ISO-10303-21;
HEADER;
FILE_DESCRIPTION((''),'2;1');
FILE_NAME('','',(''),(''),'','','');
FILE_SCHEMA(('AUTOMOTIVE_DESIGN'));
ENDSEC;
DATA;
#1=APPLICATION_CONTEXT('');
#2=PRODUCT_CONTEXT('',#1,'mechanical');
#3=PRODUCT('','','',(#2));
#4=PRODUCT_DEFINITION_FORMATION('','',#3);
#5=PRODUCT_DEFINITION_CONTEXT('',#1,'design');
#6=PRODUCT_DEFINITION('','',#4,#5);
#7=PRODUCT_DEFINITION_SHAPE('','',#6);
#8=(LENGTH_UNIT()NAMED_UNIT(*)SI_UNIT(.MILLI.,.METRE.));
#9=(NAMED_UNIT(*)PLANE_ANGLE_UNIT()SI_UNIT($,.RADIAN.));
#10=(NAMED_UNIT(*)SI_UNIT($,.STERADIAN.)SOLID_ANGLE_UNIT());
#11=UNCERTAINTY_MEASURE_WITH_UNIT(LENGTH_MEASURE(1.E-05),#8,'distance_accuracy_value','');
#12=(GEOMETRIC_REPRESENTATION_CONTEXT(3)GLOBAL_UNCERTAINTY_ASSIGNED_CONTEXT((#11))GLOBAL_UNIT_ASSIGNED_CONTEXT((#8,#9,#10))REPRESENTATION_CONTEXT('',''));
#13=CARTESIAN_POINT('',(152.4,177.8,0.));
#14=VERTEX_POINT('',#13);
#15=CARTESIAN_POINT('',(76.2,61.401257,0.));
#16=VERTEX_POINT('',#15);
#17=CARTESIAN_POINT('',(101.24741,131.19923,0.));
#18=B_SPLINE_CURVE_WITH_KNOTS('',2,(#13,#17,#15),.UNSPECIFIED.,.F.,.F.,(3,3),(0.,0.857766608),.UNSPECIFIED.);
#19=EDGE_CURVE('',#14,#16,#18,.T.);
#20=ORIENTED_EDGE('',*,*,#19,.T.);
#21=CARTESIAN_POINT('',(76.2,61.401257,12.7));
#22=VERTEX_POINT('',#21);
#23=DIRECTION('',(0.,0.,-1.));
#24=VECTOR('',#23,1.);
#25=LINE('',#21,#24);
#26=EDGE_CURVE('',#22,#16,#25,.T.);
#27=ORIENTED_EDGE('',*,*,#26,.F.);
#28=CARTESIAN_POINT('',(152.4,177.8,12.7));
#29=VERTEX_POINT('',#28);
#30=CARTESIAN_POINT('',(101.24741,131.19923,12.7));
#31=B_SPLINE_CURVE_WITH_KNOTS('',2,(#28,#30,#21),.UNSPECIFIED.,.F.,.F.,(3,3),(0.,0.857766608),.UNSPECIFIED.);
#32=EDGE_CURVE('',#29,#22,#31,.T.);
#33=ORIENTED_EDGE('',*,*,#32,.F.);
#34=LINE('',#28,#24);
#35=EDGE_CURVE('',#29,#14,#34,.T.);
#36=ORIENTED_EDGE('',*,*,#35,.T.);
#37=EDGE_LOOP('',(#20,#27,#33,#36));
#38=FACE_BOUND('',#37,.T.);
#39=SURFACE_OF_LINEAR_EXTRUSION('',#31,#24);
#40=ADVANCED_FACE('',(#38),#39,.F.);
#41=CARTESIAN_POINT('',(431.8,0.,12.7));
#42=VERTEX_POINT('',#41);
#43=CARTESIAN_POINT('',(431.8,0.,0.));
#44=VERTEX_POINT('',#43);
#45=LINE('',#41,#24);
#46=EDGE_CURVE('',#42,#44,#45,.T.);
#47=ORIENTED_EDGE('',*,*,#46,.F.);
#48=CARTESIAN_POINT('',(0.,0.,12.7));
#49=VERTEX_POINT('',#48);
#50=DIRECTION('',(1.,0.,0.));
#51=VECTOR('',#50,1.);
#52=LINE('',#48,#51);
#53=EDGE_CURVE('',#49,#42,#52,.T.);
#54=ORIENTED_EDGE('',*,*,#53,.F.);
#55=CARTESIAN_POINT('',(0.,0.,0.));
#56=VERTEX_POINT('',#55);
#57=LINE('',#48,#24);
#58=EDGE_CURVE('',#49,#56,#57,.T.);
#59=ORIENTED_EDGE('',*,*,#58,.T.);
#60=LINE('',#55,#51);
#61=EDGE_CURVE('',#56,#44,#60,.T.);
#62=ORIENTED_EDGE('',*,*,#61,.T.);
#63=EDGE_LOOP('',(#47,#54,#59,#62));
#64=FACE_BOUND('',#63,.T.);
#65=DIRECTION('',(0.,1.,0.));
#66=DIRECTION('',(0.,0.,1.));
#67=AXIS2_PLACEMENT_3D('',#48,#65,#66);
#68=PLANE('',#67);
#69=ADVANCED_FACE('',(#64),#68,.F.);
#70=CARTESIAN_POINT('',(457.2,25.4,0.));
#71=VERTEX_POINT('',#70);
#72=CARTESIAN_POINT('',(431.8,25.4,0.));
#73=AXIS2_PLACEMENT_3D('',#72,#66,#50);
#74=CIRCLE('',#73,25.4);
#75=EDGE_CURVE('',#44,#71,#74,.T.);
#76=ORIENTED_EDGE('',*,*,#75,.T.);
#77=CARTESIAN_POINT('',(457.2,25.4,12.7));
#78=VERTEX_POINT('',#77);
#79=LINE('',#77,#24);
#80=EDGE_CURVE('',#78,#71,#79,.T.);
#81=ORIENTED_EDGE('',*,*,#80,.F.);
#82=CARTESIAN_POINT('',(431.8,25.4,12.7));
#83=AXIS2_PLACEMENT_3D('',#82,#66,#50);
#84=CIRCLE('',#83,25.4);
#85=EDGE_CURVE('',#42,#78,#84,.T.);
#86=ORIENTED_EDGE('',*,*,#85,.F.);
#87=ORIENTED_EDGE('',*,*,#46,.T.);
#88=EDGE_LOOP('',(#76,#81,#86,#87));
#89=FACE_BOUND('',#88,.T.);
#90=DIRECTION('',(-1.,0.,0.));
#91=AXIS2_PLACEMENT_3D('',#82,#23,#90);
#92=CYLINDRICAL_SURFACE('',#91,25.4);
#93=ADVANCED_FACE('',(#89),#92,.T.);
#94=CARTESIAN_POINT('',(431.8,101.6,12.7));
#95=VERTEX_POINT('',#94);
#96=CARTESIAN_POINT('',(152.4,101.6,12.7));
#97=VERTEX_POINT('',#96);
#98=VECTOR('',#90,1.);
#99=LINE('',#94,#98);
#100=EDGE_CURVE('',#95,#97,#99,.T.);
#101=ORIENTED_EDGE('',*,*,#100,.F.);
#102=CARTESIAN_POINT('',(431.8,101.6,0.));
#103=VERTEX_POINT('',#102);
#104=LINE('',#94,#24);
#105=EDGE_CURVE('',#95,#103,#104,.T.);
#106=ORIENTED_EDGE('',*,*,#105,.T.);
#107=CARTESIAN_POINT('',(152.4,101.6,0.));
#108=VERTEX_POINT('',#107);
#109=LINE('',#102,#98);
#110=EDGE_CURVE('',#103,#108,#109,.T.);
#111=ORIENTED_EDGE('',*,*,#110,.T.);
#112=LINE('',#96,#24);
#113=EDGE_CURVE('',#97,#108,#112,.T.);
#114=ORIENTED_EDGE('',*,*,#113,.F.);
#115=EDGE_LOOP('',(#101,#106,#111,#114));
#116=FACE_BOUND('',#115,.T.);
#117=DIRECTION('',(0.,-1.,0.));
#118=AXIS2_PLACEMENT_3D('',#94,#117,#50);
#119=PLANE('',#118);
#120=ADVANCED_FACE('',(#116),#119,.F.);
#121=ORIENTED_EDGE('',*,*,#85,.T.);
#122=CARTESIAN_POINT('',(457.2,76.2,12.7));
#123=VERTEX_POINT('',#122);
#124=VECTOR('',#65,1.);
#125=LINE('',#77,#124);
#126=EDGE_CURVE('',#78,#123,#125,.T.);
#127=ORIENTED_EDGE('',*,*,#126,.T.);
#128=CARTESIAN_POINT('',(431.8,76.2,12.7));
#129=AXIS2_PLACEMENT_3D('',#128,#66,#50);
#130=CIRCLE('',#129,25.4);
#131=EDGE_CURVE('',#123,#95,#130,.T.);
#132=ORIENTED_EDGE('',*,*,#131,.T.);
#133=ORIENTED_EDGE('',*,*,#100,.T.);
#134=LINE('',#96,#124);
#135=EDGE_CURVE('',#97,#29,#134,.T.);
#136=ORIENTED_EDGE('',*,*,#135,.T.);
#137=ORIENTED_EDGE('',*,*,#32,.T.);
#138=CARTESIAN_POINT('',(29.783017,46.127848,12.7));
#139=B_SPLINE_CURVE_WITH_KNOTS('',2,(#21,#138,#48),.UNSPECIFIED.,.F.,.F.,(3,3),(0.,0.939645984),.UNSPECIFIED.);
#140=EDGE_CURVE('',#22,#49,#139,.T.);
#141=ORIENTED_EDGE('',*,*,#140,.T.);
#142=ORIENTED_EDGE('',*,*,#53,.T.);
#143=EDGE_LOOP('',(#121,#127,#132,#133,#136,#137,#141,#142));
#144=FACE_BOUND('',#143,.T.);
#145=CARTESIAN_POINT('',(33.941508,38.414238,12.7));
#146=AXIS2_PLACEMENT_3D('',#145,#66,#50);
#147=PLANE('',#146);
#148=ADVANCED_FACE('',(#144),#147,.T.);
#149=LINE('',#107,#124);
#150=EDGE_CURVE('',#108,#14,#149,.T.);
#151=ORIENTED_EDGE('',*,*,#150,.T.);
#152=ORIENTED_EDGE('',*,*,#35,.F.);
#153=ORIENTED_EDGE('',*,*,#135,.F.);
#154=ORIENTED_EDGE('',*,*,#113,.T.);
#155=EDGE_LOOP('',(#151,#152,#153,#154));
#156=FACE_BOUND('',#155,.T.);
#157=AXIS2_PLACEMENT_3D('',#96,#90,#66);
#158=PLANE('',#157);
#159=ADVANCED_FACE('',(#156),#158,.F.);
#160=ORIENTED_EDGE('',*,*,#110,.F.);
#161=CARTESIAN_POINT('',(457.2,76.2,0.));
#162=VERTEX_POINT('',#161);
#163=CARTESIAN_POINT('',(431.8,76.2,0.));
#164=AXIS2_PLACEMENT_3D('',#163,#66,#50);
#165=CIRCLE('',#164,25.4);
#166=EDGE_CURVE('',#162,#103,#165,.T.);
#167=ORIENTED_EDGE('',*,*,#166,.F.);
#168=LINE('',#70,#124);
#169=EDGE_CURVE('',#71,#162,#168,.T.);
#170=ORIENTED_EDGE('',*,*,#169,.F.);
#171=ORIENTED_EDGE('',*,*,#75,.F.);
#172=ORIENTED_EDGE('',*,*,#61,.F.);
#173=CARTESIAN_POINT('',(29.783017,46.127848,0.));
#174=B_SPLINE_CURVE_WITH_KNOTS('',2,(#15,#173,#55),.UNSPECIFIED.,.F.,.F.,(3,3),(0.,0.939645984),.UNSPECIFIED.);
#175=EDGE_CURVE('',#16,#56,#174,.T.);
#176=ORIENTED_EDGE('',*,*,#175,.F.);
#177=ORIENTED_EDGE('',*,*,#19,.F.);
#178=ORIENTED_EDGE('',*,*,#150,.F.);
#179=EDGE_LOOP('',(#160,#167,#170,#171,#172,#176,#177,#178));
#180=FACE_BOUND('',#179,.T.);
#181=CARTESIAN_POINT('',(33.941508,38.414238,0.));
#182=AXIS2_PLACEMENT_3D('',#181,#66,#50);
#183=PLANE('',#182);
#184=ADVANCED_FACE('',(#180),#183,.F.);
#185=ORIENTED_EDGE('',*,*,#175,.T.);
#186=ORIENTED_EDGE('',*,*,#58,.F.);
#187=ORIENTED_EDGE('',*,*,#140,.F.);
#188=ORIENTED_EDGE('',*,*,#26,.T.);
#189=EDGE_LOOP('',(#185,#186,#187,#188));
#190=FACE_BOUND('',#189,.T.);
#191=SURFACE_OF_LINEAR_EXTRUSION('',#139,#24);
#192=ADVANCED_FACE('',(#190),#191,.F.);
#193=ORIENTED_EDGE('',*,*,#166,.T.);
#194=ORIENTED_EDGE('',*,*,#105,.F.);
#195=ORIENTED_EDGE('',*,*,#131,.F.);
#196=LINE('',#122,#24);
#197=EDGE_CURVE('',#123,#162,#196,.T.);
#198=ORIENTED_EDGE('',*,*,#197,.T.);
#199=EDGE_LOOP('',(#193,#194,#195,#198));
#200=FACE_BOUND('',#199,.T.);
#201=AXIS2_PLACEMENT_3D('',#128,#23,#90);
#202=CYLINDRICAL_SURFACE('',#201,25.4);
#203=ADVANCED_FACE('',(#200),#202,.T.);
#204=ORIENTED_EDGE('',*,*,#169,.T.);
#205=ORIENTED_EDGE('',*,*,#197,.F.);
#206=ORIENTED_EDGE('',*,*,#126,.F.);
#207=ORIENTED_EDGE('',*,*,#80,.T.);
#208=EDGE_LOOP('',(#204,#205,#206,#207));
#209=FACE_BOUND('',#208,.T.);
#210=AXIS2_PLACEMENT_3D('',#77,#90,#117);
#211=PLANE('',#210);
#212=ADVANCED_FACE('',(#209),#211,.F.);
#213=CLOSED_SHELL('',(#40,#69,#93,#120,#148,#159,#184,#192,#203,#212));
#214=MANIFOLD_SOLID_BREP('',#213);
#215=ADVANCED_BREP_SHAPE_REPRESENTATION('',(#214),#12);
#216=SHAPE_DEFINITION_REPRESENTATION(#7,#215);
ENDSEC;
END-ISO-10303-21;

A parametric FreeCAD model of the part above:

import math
import FreeCAD as App
import Part
import Sketcher
from FreeCAD import Vector
Q = App.Units.Quantity

doc = App.newDocument("Part")
body = doc.addObject("PartDesign::Body", "Body")

# Sketch on XY plane
sketch1 = doc.addObject("Sketcher::SketchObject", "Sketch")
body.addObject(sketch1)
sketch1.AttachmentSupport = (doc.XY_Plane, [""])
sketch1.MapMode = "FlatFace"
sketch1.addGeometry([
    Part.LineSegment(Vector(0, 0, 0), Vector(431.8, 0, 0)),  # 0
    Part.ArcOfCircle(Part.Circle(Vector(431.8, 25.4, 0), Vector(0, 0, 1), 25.4), math.radians(-90), math.radians(0)),  # 1
    Part.LineSegment(Vector(457.2, 25.4, 0), Vector(457.2, 76.2, 0)),  # 2
    Part.ArcOfCircle(Part.Circle(Vector(431.8, 76.2, 0), Vector(0, 0, 1), 25.4), math.radians(0), math.radians(90)),  # 3
    Part.LineSegment(Vector(431.8, 101.6, 0), Vector(152.4, 101.6, 0)),  # 4
    Part.LineSegment(Vector(152.4, 101.6, 0), Vector(152.4, 177.8, 0)),  # 5
    Part.BSplineCurve([Vector(76.2, 61.401257, 0), Vector(101.24741, 131.19923, 0), Vector(152.4, 177.8, 0)], [3, 3], [0, 0.857766608], False, 2, [1, 1, 1], False),  # 6
    Part.BSplineCurve([Vector(0, 0, 0), Vector(29.783017, 46.127848, 0), Vector(76.2, 61.401257, 0)], [3, 3], [0, 0.939645984], False, 2, [1, 1, 1], False),  # 7
], False)
sketch1.addConstraint([
    Sketcher.Constraint("Block", 6),
    Sketcher.Constraint("Block", 7),
    Sketcher.Constraint("Tangent", 0, 2, 1, 1),
    Sketcher.Constraint("Tangent", 1, 2, 2, 1),
    Sketcher.Constraint("Tangent", 2, 2, 3, 1),
    Sketcher.Constraint("Tangent", 3, 2, 4, 1),
    Sketcher.Constraint("Coincident", 4, 2, 5, 1),
    Sketcher.Constraint("Coincident", 5, 2, 6, 2),
    Sketcher.Constraint("Coincident", 7, 1, 0, 1),
    Sketcher.Constraint("Horizontal", 0),
    Sketcher.Constraint("Vertical", 2),
    Sketcher.Constraint("Horizontal", 4),
    Sketcher.Constraint("Vertical", 5),
    Sketcher.Constraint("Equal", 1, 3),
    Sketcher.Constraint("Radius", 1, Q("1 in")),
    Sketcher.Constraint("DistanceX", 0, 1, 0, 2, Q("17 in")),
    Sketcher.Constraint("DistanceY", 2, 1, 2, 2, Q("2 in")),
])
pad1 = doc.addObject("PartDesign::Pad", "Pad")
body.addObject(pad1)
pad1.Profile = sketch1
pad1.Length = Q("0.5 in")

doc.recompute()
